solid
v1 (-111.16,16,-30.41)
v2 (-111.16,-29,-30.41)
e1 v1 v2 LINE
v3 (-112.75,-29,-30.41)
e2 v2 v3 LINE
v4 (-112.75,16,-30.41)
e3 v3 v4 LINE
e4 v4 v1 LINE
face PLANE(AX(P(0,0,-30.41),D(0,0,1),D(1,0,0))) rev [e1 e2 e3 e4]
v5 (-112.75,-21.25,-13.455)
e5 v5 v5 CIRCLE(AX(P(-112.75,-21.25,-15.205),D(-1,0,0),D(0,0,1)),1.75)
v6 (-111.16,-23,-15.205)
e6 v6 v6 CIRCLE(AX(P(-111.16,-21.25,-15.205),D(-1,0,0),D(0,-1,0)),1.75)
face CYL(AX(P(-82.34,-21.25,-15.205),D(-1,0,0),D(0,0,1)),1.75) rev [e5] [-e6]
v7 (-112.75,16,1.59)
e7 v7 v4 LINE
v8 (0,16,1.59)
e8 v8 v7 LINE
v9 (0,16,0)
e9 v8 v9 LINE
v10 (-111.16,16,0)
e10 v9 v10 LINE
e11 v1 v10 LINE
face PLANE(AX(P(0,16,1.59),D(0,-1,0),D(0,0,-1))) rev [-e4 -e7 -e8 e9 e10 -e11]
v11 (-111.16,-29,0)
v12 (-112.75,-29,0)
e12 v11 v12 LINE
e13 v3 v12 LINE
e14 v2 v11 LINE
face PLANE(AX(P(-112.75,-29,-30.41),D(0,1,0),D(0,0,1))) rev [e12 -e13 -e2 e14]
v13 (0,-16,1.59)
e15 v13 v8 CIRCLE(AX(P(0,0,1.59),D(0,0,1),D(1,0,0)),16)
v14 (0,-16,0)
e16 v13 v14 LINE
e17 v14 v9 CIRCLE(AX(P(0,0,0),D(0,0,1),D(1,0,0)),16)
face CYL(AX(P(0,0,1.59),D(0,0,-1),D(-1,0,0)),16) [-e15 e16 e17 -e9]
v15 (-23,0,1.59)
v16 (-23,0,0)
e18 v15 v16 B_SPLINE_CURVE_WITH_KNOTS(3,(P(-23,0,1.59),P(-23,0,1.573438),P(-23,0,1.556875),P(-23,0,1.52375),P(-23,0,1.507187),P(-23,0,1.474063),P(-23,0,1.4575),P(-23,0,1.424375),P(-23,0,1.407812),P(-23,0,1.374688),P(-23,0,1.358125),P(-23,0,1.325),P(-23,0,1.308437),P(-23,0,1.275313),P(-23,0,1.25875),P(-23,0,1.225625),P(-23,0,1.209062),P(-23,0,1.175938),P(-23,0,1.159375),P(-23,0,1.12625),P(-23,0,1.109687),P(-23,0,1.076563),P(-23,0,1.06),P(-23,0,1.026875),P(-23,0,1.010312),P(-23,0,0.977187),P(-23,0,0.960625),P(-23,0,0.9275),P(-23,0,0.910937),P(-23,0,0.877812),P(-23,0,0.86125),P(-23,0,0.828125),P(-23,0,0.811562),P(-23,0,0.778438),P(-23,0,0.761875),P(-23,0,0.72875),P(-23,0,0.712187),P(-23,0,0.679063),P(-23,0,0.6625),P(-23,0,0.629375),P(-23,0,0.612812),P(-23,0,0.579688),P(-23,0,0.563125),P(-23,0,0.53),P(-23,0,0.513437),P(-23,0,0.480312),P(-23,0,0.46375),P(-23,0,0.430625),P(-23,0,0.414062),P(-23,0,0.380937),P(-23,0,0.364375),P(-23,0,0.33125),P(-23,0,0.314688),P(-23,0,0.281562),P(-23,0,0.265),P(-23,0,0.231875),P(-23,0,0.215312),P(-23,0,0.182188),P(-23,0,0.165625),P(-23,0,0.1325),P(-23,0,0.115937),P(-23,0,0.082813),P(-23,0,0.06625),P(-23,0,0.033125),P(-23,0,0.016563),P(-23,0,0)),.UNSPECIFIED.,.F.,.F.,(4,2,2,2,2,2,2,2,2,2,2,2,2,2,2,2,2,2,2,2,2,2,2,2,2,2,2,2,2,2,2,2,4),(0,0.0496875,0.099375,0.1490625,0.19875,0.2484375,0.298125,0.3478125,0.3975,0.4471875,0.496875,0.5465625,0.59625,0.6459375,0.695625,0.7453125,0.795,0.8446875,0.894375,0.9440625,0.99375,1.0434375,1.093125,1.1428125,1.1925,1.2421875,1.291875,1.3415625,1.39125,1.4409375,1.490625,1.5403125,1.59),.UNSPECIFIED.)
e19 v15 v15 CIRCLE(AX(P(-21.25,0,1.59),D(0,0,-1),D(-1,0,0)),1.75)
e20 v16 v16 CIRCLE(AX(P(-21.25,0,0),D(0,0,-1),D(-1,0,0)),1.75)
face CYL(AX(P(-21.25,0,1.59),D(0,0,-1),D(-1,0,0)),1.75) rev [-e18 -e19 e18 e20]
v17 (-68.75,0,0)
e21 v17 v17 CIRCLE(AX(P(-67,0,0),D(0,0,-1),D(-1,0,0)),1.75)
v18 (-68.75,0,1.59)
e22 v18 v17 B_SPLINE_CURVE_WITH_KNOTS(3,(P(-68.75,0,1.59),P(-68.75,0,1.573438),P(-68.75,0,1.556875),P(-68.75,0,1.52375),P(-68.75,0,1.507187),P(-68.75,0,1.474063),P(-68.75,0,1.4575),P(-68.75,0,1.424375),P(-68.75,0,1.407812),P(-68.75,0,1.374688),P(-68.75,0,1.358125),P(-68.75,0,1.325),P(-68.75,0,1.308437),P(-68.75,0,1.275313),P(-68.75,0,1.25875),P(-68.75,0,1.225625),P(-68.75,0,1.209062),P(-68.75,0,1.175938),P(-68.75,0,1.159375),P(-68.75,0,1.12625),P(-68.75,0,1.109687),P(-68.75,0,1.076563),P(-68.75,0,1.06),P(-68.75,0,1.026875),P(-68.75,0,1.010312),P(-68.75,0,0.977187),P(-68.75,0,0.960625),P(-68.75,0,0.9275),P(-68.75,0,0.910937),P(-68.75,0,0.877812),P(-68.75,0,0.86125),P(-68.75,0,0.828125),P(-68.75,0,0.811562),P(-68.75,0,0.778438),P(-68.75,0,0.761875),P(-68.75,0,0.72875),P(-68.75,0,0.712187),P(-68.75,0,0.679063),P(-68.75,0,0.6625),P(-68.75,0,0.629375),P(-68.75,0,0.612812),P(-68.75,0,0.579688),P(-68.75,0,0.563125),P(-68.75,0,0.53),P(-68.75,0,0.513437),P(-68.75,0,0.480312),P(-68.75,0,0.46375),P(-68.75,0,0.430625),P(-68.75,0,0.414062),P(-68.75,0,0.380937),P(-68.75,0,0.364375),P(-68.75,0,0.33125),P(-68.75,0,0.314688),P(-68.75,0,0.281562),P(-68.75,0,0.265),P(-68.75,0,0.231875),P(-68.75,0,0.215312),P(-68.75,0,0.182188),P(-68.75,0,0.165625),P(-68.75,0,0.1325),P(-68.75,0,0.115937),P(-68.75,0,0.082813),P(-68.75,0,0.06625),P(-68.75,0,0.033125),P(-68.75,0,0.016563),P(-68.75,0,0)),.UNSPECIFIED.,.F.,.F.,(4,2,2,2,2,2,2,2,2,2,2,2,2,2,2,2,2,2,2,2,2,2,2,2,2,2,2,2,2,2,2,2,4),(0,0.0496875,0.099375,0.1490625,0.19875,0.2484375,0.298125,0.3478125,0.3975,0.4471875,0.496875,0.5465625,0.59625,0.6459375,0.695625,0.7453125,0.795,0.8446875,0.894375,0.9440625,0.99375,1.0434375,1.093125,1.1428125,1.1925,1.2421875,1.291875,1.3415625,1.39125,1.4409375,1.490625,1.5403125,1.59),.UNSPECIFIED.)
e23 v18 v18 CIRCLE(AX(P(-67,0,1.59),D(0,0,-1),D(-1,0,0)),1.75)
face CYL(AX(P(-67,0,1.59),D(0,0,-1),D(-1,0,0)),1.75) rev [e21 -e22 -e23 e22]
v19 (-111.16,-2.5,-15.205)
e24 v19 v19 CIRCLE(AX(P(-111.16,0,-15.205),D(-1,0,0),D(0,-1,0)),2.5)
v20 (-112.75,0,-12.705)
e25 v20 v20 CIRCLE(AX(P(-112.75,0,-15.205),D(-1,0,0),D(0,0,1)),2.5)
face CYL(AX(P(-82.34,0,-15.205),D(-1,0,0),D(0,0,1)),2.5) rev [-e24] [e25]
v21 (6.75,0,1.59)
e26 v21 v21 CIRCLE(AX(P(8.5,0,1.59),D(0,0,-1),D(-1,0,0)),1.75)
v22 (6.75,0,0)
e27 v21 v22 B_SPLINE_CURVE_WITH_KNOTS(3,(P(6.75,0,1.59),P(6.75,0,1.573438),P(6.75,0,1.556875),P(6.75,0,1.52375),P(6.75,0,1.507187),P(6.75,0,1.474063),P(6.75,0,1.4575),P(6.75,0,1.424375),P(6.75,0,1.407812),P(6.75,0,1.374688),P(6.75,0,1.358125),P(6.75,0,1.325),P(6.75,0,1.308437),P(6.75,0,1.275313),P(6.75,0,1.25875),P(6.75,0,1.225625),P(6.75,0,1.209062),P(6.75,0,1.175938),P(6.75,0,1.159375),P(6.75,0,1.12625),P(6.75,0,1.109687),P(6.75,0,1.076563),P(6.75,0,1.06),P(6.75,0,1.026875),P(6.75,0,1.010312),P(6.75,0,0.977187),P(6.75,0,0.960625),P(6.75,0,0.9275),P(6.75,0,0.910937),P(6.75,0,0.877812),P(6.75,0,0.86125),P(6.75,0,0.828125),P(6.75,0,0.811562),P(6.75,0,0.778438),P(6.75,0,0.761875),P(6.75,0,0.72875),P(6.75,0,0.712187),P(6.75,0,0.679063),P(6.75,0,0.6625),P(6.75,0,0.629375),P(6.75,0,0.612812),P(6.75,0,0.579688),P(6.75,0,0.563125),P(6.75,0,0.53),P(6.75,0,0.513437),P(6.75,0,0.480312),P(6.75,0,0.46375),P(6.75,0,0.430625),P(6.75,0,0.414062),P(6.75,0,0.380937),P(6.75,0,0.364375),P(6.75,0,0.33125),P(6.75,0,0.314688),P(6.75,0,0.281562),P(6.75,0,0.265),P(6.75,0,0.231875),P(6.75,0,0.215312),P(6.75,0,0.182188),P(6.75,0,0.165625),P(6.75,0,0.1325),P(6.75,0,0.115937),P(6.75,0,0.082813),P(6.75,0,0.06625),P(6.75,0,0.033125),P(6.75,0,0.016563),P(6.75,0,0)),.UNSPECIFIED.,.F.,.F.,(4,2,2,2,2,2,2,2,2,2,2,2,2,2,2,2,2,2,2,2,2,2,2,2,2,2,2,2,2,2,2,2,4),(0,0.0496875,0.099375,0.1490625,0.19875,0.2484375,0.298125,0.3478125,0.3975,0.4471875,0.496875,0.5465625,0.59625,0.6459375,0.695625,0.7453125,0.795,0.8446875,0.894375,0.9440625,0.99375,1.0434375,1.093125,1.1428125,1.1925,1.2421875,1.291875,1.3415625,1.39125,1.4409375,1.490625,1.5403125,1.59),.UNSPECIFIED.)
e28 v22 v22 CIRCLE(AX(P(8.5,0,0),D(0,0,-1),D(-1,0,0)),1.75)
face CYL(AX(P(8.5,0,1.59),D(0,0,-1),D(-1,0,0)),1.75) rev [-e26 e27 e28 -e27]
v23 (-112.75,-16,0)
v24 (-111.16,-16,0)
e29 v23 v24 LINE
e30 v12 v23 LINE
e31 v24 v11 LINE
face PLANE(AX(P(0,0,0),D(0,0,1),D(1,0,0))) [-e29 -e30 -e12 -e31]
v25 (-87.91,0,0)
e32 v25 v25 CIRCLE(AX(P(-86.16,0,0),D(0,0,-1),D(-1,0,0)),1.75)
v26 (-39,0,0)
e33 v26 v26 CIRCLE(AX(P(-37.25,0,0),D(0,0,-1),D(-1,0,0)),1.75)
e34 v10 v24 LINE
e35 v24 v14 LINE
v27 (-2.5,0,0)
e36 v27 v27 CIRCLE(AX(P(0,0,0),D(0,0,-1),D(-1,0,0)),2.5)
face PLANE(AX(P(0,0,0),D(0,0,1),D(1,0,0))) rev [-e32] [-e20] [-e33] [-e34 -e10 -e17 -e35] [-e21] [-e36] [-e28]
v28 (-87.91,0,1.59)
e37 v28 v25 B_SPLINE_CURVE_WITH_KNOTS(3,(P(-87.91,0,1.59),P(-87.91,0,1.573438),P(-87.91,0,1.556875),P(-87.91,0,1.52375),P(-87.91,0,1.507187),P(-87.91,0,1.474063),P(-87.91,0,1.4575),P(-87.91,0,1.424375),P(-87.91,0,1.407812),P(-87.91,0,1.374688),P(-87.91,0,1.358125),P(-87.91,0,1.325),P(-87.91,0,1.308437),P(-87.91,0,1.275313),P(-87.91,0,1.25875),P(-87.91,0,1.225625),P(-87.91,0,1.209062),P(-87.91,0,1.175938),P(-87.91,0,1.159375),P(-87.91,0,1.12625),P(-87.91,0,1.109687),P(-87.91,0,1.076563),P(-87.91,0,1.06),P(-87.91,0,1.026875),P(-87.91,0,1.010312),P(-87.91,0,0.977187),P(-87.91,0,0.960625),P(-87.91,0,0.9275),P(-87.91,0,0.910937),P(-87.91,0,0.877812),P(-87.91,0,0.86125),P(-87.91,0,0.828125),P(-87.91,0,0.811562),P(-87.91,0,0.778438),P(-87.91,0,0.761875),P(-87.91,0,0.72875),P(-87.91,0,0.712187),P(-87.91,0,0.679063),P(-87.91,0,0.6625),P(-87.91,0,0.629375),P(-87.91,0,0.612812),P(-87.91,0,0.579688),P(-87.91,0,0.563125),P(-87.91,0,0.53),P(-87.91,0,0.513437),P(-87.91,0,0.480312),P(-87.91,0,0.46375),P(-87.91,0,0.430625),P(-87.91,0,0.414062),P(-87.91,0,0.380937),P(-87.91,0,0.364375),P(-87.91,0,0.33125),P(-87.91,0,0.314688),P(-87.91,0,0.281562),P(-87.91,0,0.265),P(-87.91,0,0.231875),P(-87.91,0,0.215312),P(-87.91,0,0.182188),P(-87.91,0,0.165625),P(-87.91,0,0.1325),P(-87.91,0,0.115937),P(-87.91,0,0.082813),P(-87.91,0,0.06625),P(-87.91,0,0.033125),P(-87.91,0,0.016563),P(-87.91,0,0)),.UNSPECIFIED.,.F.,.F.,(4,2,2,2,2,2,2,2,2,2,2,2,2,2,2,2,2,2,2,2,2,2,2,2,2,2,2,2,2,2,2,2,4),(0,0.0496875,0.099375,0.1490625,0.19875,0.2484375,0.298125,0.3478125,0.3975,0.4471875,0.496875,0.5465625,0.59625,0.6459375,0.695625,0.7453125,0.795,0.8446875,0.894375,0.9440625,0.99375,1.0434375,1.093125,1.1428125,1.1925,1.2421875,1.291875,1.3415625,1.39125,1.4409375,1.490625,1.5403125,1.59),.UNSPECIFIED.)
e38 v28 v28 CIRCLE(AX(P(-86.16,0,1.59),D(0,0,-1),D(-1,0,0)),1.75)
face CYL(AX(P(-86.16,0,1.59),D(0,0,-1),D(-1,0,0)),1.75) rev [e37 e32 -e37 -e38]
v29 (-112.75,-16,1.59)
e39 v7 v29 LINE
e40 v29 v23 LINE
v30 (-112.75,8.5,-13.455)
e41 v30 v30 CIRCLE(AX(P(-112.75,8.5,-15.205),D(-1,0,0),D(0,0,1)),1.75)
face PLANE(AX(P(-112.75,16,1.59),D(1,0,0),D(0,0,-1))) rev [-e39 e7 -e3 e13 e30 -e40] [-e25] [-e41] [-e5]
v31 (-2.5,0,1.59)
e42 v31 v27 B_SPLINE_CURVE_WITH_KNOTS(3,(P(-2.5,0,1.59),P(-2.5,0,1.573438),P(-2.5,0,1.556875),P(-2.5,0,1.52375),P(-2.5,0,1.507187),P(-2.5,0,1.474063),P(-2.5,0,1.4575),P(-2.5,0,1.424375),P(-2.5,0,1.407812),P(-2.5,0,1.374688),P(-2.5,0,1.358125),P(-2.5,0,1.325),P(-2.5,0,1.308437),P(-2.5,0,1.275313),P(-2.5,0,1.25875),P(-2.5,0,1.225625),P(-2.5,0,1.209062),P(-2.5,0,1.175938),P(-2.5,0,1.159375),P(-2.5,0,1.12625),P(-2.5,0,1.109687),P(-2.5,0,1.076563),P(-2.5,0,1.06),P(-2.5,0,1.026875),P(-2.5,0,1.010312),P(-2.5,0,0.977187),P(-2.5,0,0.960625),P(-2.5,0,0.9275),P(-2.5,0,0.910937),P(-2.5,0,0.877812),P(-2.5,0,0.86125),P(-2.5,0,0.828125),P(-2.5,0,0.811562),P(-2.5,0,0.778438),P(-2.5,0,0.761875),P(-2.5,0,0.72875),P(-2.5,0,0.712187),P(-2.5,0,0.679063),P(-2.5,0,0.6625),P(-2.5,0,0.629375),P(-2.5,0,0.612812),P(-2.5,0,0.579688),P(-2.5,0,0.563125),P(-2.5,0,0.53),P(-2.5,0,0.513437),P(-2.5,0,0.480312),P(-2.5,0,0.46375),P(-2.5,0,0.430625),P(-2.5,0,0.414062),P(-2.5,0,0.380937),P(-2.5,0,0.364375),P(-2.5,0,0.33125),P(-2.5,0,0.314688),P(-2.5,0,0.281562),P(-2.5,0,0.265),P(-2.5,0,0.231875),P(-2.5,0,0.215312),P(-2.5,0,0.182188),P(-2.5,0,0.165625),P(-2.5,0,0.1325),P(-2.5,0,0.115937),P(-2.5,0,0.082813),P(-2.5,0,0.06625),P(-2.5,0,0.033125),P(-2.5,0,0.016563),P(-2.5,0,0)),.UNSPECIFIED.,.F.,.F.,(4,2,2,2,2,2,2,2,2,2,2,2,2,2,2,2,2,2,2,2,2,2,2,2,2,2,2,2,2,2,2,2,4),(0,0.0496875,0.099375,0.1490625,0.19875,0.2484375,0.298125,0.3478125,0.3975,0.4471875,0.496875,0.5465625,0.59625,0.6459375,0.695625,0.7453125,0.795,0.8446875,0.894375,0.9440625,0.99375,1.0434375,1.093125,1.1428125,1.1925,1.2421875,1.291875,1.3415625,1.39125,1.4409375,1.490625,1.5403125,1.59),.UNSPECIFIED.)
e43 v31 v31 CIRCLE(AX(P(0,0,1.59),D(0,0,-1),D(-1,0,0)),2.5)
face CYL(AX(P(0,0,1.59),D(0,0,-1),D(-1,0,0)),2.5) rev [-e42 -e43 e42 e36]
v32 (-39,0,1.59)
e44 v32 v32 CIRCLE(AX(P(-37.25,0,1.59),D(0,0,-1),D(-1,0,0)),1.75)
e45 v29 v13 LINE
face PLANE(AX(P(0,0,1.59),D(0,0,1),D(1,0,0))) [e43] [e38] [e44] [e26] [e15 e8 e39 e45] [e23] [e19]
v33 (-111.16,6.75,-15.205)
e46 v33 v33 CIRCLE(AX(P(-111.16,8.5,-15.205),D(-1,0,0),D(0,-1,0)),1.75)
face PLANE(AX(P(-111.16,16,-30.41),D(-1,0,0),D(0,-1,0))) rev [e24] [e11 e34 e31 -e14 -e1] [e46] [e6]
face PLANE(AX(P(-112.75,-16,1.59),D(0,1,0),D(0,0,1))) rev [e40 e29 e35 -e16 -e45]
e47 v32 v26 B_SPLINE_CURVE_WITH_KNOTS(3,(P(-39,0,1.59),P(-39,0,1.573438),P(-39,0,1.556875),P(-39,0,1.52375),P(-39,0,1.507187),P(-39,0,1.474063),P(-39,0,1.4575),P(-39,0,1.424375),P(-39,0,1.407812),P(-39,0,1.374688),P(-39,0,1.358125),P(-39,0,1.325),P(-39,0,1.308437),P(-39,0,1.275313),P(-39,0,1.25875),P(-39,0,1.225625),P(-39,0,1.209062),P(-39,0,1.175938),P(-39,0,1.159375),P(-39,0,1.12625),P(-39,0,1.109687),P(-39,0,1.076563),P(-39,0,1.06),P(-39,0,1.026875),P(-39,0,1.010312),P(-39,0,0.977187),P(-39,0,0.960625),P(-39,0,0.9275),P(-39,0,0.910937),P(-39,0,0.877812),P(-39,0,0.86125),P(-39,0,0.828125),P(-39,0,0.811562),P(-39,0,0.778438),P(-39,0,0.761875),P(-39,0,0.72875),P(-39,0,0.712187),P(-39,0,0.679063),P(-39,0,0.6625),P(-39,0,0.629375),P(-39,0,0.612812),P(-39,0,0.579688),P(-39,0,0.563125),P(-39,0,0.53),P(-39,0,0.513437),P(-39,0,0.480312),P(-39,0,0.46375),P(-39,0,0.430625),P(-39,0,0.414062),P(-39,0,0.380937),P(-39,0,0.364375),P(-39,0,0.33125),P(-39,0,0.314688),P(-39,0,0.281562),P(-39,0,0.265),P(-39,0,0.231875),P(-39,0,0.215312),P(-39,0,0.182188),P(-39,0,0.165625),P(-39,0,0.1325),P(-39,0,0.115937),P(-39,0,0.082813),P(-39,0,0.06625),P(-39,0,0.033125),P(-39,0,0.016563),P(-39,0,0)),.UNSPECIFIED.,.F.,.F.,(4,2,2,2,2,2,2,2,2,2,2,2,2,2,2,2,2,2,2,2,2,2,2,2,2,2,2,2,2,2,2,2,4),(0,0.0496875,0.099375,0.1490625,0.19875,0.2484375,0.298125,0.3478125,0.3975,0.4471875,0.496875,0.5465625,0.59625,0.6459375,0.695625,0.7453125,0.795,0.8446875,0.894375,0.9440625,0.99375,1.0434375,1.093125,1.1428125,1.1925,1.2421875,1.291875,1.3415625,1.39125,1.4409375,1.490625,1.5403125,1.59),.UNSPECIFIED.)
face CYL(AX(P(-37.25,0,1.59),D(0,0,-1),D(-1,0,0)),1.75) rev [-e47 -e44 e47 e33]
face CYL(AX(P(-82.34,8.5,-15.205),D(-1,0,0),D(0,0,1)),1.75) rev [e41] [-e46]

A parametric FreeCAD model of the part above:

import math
import FreeCAD as App
import Part
import Sketcher
from FreeCAD import Vector

doc = App.newDocument("Part")
params = doc.addObject("Spreadsheet::Sheet", "Params")
for row, (alias, value) in enumerate([
    ("sketch1_radius", "16 mm"),
    ("sketch1_width", "112.75 mm"),
    ("pad1_length", "1.59 mm"),
    ("sketch2_height", "45 mm"),
    ("sketch2_width", "1.59 mm"),
    ("pad2_length", "30.41 mm"),
    ("sketch3_diameter", "5 mm"),
    ("sketch3_diameter2", "3.5 mm"),
    ("sketch4_diameter", "5 mm"),
    ("sketch4_diameter2", "3.5 mm"),
    ("pocket2_length", "30.41 mm"),
], start=1):
    params.set(f"A{row}", alias)
    params.set(f"B{row}", "=" + value)
    params.setAlias(f"B{row}", alias)

body = doc.addObject("PartDesign::Body", "Body")

sketch1 = doc.addObject("Sketcher::SketchObject", "Sketch")
body.addObject(sketch1)
sketch1.AttachmentSupport = (doc.XY_Plane, [""])
sketch1.MapMode = "FlatFace"
sketch1.addGeometry(Part.LineSegment(Vector(0, 16, 0), Vector(-113, 16, 0)), False)
sketch1.addGeometry(Part.LineSegment(Vector(-113, 16, 0), Vector(-113, -16, 0)), False)
sketch1.addGeometry(Part.LineSegment(Vector(-113, -16, 0), Vector(0, -16, 0)), False)
sketch1.addGeometry(Part.ArcOfCircle(Part.Circle(Vector(0, 0, 0), Vector(0, 0, 1), 16), math.radians(-90), math.radians(90)), False)
sketch1.addConstraint(Sketcher.Constraint("Coincident", 0, 2, 1, 1))
sketch1.addConstraint(Sketcher.Constraint("Coincident", 1, 2, 2, 1))
sketch1.addConstraint(Sketcher.Constraint("Tangent", 2, 2, 3, 1))
sketch1.addConstraint(Sketcher.Constraint("Tangent", 3, 2, 0, 1))
sketch1.addConstraint(Sketcher.Constraint("Horizontal", 0))
sketch1.addConstraint(Sketcher.Constraint("Vertical", 1))
sketch1.addConstraint(Sketcher.Constraint("Horizontal", 2))
sketch1.addConstraint(Sketcher.Constraint("Coincident", 3, 3, -1, 1))
sketch1.addConstraint(Sketcher.Constraint("Radius", 3, 16.0))
sketch1.addConstraint(Sketcher.Constraint("DistanceX", 0, 2, 0, 1, 112.75))
sketch1.setExpression("Constraints[8]", "Params.sketch1_radius")
sketch1.setExpression("Constraints[9]", "Params.sketch1_width")
pad1 = doc.addObject("PartDesign::Pad", "Pad")
body.addObject(pad1)
pad1.Profile = sketch1
pad1.setExpression("Length", "Params.pad1_length")

sketch2 = doc.addObject("Sketcher::SketchObject", "Sketch001")
body.addObject(sketch2)
sketch2.AttachmentSupport = (doc.XY_Plane, [""])
sketch2.MapMode = "FlatFace"
sketch2.addGeometry(Part.LineSegment(Vector(-111.2, 16, 0), Vector(-111.2, -29, 0)), False)
sketch2.addGeometry(Part.LineSegment(Vector(-111.2, -29, 0), Vector(-112.8, -29, 0)), False)
sketch2.addGeometry(Part.LineSegment(Vector(-112.8, -29, 0), Vector(-112.8, 16, 0)), False)
sketch2.addGeometry(Part.LineSegment(Vector(-112.8, 16, 0), Vector(-111.2, 16, 0)), False)
sketch2.addConstraint(Sketcher.Constraint("Coincident", 0, 2, 1, 1))
sketch2.addConstraint(Sketcher.Constraint("Coincident", 1, 2, 2, 1))
sketch2.addConstraint(Sketcher.Constraint("Coincident", 2, 2, 3, 1))
sketch2.addConstraint(Sketcher.Constraint("Coincident", 3, 2, 0, 1))
sketch2.addConstraint(Sketcher.Constraint("Vertical", 0))
sketch2.addConstraint(Sketcher.Constraint("Horizontal", 1))
sketch2.addConstraint(Sketcher.Constraint("Vertical", 2))
sketch2.addConstraint(Sketcher.Constraint("Horizontal", 3))
sketch2.addConstraint(Sketcher.Constraint("DistanceY", 0, 2, 0, 1, 45.0))
sketch2.addConstraint(Sketcher.Constraint("DistanceY", 0, 2, -1, 1, 29.0))
sketch2.addConstraint(Sketcher.Constraint("DistanceX", 1, 2, 1, 1, 1.59))
sketch2.addConstraint(Sketcher.Constraint("DistanceX", 0, 2, -1, 1, 111.16))
sketch2.setExpression("Constraints[8]", "Params.sketch2_height")
sketch2.setExpression("Constraints[10]", "Params.sketch2_width")
pad2 = doc.addObject("PartDesign::Pad", "Pad001")
body.addObject(pad2)
pad2.Profile = sketch2
pad2.setExpression("Length", "Params.pad2_length")
pad2.Reversed = True

sketch3 = doc.addObject("Sketcher::SketchObject", "Sketch002")
body.addObject(sketch3)
sketch3.AttachmentSupport = (doc.XY_Plane, [""])
sketch3.MapMode = "FlatFace"
sketch3.addGeometry(Part.Circle(Vector(-86.2, 0, 0), Vector(0, 0, 1), 1.8), False)
sketch3.addGeometry(Part.Circle(Vector(-37.2, 0, 0), Vector(0, 0, 1), 1.8), False)
sketch3.addGeometry(Part.Circle(Vector(-67, 0, 0), Vector(0, 0, 1), 1.8), False)
sketch3.addGeometry(Part.Circle(Vector(8.5, 0, 0), Vector(0, 0, 1), 1.8), False)
sketch3.addGeometry(Part.Circle(Vector(0, 0, 0), Vector(0, 0, 1), 2.5), False)
sketch3.addGeometry(Part.Circle(Vector(-21.2, 0, 0), Vector(0, 0, 1), 1.8), False)
sketch3.addConstraint(Sketcher.Constraint("Coincident", 4, 3, -1, 1))
sketch3.addConstraint(Sketcher.Constraint("Equal", 0, 1))
sketch3.addConstraint(Sketcher.Constraint("Equal", 1, 2))
sketch3.addConstraint(Sketcher.Constraint("Equal", 2, 3))
sketch3.addConstraint(Sketcher.Constraint("Equal", 3, 5))
sketch3.addConstraint(Sketcher.Constraint("PointOnObject", 0, 3, -1))
sketch3.addConstraint(Sketcher.Constraint("PointOnObject", 1, 3, -1))
sketch3.addConstraint(Sketcher.Constraint("PointOnObject", 2, 3, -1))
sketch3.addConstraint(Sketcher.Constraint("PointOnObject", 3, 3, -1))
sketch3.addConstraint(Sketcher.Constraint("PointOnObject", 5, 3, -1))
sketch3.addConstraint(Sketcher.Constraint("Diameter", 4, 5.0))
sketch3.addConstraint(Sketcher.Constraint("Diameter", 0, 3.5))
sketch3.addConstraint(Sketcher.Constraint("DistanceX", 2, 3, -1, 1, 67.0))
sketch3.addConstraint(Sketcher.Constraint("DistanceX", 1, 3, 5, 3, 16.0))
sketch3.addConstraint(Sketcher.Constraint("DistanceX", -1, 1, 3, 3, 8.5))
sketch3.addConstraint(Sketcher.Constraint("DistanceX", 0, 3, -1, 1, 86.16))
sketch3.addConstraint(Sketcher.Constraint("DistanceX", 1, 3, -1, 1, 37.25))
sketch3.setExpression("Constraints[10]", "Params.sketch3_diameter")
sketch3.setExpression("Constraints[11]", "Params.sketch3_diameter2")
pocket1 = doc.addObject("PartDesign::Pocket", "Pocket")
body.addObject(pocket1)
pocket1.Profile = sketch3
pocket1.Type = "ThroughAll"
pocket1.Reversed = True

sketch4 = doc.addObject("Sketcher::SketchObject", "Sketch003")
body.addObject(sketch4)
sketch4.AttachmentSupport = (doc.YZ_Plane, [""])
sketch4.MapMode = "FlatFace"
sketch4.AttachmentOffset = App.Placement(Vector(0, 0, -112.75), App.Rotation())
sketch4.addGeometry(Part.Circle(Vector(0, -15.2, 0), Vector(0, 0, 1), 2.5), False)
sketch4.addGeometry(Part.Circle(Vector(8.5, -15.2, 0), Vector(0, 0, 1), 1.8), False)
sketch4.addGeometry(Part.Circle(Vector(-21.2, -15.2, 0), Vector(0, 0, 1), 1.8), False)
sketch4.addConstraint(Sketcher.Constraint("Equal", 1, 2))
sketch4.addConstraint(Sketcher.Constraint("PointOnObject", 0, 3, -2))
sketch4.addConstraint(Sketcher.Constraint("Horizontal", 0, 3, 1, 3))
sketch4.addConstraint(Sketcher.Constraint("Horizontal", 1, 3, 2, 3))
sketch4.addConstraint(Sketcher.Constraint("Diameter", 0, 5.0))
sketch4.addConstraint(Sketcher.Constraint("Diameter", 1, 3.5))
sketch4.addConstraint(Sketcher.Constraint("DistanceX", -1, 1, 1, 3, 8.5))
sketch4.addConstraint(Sketcher.Constraint("DistanceX", 2, 3, -1, 1, 21.25))
sketch4.addConstraint(Sketcher.Constraint("DistanceY", 0, 3, -1, 1, 15.205))
sketch4.setExpression("Constraints[4]", "Params.sketch4_diameter")
sketch4.setExpression("Constraints[5]", "Params.sketch4_diameter2")
pocket2 = doc.addObject("PartDesign::Pocket", "Pocket001")
body.addObject(pocket2)
pocket2.Profile = sketch4
pocket2.setExpression("Length", "Params.pocket2_length")
pocket2.Reversed = True

doc.recompute()
